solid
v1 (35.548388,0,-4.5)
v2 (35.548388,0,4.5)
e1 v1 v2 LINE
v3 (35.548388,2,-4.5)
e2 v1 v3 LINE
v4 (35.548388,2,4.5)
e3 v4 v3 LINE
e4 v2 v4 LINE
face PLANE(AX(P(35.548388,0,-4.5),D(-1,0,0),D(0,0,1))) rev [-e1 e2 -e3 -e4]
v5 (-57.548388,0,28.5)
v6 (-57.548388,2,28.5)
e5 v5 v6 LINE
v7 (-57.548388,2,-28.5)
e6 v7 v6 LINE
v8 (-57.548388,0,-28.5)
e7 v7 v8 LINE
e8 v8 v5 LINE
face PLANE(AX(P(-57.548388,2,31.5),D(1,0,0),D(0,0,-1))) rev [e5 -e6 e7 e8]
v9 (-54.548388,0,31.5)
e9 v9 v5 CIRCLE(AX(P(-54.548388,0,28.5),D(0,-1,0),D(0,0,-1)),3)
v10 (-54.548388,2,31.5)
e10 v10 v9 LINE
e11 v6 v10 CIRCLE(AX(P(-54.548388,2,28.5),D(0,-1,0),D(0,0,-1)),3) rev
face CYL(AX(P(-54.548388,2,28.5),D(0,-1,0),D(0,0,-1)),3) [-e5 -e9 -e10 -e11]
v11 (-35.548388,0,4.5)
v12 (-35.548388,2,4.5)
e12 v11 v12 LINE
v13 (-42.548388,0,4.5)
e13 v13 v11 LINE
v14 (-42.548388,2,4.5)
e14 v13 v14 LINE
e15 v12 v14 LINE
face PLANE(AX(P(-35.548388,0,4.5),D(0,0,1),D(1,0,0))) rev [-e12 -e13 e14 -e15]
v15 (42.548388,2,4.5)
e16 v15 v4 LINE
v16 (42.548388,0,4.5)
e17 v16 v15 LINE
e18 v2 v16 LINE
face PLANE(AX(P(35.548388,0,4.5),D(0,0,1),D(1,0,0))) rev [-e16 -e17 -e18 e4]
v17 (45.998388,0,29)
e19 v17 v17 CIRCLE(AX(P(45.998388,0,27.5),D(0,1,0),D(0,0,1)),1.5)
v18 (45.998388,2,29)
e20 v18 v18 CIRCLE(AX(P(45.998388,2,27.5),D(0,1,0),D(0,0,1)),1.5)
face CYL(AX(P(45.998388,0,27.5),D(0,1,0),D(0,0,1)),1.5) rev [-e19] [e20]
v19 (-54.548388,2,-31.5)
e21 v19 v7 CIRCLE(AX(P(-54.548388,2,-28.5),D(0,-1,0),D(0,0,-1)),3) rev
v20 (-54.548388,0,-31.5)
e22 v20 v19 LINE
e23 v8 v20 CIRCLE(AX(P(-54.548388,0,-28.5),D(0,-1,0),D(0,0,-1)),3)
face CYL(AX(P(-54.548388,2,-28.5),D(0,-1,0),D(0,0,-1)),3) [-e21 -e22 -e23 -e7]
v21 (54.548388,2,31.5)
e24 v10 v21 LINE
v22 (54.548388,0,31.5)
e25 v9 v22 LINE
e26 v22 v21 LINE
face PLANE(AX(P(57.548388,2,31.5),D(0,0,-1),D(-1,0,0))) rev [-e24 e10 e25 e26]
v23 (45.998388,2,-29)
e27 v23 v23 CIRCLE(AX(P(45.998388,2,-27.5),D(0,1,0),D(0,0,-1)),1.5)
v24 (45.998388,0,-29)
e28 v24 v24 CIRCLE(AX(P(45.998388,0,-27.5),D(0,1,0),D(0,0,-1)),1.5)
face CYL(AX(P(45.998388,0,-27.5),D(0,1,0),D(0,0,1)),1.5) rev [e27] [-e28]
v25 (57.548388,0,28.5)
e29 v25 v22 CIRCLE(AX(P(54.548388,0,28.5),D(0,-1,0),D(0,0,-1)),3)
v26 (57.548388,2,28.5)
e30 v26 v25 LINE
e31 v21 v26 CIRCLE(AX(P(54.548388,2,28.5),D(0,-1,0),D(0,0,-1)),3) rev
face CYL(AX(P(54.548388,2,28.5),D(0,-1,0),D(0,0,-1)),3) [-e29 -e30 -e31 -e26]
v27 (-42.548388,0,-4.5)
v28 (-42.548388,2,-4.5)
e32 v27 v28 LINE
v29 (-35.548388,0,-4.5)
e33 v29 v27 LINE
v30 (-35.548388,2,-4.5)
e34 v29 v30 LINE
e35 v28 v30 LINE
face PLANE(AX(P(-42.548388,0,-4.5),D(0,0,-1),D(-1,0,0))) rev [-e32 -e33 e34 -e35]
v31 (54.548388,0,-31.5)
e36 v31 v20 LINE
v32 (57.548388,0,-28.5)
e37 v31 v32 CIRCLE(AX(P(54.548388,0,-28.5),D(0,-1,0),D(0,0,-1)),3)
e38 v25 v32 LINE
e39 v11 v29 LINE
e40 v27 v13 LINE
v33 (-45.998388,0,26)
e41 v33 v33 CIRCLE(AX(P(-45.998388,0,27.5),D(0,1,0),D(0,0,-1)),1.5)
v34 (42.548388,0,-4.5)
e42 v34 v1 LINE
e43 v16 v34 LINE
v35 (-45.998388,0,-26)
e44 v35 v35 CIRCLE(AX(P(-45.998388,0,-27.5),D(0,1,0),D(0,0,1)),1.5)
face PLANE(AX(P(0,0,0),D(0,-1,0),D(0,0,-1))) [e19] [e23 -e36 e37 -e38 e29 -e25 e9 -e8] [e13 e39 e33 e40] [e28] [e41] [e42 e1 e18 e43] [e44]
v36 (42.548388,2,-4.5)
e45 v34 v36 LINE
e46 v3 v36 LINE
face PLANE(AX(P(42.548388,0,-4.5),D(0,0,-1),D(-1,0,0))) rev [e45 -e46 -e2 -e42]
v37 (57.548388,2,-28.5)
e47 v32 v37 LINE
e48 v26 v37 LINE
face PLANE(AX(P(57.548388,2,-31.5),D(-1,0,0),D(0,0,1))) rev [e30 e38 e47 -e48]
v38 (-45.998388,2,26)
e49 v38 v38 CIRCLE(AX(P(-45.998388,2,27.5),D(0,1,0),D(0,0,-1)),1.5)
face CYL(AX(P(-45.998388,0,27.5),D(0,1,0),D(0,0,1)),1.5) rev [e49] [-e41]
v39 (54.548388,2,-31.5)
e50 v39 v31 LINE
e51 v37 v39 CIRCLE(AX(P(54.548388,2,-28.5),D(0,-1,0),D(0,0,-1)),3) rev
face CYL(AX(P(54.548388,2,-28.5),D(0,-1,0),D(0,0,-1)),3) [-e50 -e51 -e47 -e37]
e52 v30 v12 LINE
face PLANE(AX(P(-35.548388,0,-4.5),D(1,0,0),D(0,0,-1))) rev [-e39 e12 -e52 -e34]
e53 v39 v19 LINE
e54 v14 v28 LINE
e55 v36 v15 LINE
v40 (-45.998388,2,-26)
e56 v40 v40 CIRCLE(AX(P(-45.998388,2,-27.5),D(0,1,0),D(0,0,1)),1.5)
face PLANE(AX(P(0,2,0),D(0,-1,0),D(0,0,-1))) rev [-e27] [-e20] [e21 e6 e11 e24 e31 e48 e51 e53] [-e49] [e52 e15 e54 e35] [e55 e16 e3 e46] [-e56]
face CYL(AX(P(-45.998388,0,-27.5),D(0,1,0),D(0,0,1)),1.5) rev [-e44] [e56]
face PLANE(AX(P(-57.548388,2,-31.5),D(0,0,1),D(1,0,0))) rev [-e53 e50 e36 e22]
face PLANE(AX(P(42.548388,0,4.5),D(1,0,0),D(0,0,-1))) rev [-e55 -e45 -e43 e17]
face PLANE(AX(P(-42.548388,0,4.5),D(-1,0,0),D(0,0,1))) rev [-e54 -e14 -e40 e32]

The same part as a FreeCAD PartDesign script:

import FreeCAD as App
import Part
import Sketcher
from FreeCAD import Vector


def edges_at(feature, points):
    """Names of the edges that pass closest to the given points."""
    edges = feature.Shape.Edges
    near = lambda p: min(range(len(edges)), key=lambda i: edges[i].distToShape(Part.Vertex(*p))[0])
    return sorted({f"Edge{near(p) + 1}" for p in points})


def add_polygon(sketch, points):
    """Adds a closed chain of lines whose ends are joined by coincident constraints."""
    first, n = sketch.GeometryCount, len(points)
    for a, b in zip(points, points[1:] + points[:1]):
        sketch.addGeometry(Part.LineSegment(App.Vector(*a, 0), App.Vector(*b, 0)), False)
    for i in range(n):
        sketch.addConstraint(Sketcher.Constraint("Coincident", first + i, 2, first + (i + 1) % n, 1))

doc = App.newDocument("Part")
body = doc.addObject("PartDesign::Body", "Body")

# Sketch on XZ plane
sketch1 = doc.addObject("Sketcher::SketchObject", "Sketch")
body.addObject(sketch1)
sketch1.AttachmentSupport = (doc.XZ_Plane, [""])
sketch1.MapMode = "FlatFace"
add_polygon(sketch1, [(-58, -32), (-58, 32), (58, 32), (58, -32)])  # lines 0-3
sketch1.addConstraint(Sketcher.Constraint("Vertical", 0))
sketch1.addConstraint(Sketcher.Constraint("Horizontal", 1))
sketch1.addConstraint(Sketcher.Constraint("Vertical", 2))
sketch1.addConstraint(Sketcher.Constraint("Horizontal", 3))
sketch1.addConstraint(Sketcher.Constraint("Symmetric", 0, 2, 2, 2, -1, 1))
sketch1.addConstraint(Sketcher.Constraint("DistanceY", 0, 1, 0, 2, 63.0))
sketch1.addConstraint(Sketcher.Constraint("DistanceX", 1, 1, 1, 2, 115.096777))
pad1 = doc.addObject("PartDesign::Pad", "Pad")
body.addObject(pad1)
pad1.Profile = sketch1
pad1.Length = 2
pad1.Reversed = True
doc.recompute()

fillet = doc.addObject("PartDesign::Fillet", "Fillet")
body.addObject(fillet)
fillet.Base = (pad1, edges_at(pad1, [
    (-57.548, 1, -31.5),
    (57.548, 1, -31.5),
    (57.548, 1, 31.5),
    (-57.548, 1, 31.5),
]))
fillet.Radius = 3

# Sketch on XZ plane
sketch2 = doc.addObject("Sketcher::SketchObject", "Sketch001")
body.addObject(sketch2)
sketch2.AttachmentSupport = (doc.XZ_Plane, [""])
sketch2.MapMode = "FlatFace"
sketch2.AttachmentOffset = App.Placement(Vector(0, 0, -2), App.Rotation())
add_polygon(sketch2, [(-43, -4), (-43, 4), (-36, 4), (-36, -4)])  # lines 0-3
add_polygon(sketch2, [(36, -4), (36, 4), (43, 4), (43, -4)])  # lines 4-7
sketch2.addConstraint(Sketcher.Constraint("Vertical", 0))
sketch2.addConstraint(Sketcher.Constraint("Horizontal", 1))
sketch2.addConstraint(Sketcher.Constraint("Vertical", 2))
sketch2.addConstraint(Sketcher.Constraint("Horizontal", 3))
sketch2.addConstraint(Sketcher.Constraint("Vertical", 4))
sketch2.addConstraint(Sketcher.Constraint("Horizontal", 5))
sketch2.addConstraint(Sketcher.Constraint("Vertical", 6))
sketch2.addConstraint(Sketcher.Constraint("Horizontal", 7))
sketch2.addConstraint(Sketcher.Constraint("Symmetric", 2, 2, 4, 2, -1, 1))
sketch2.addConstraint(Sketcher.Constraint("Symmetric", 0, 2, 6, 2, -1, 1))
sketch2.addConstraint(Sketcher.Constraint("Horizontal", 1, 2, 4, 2))
sketch2.addConstraint(Sketcher.Constraint("DistanceX", 1, 1, 1, 2, 7.0))
sketch2.addConstraint(Sketcher.Constraint("DistanceY", 0, 1, 0, 2, 9.0))
sketch2.addConstraint(Sketcher.Constraint("DistanceX", 0, 2, -1, 1, 42.548388))
pocket1 = doc.addObject("PartDesign::Pocket", "Pocket")
body.addObject(pocket1)
pocket1.Profile = sketch2
pocket1.Type = "ThroughAll"
pocket1.Midplane = True

# Sketch on XZ plane
sketch3 = doc.addObject("Sketcher::SketchObject", "Sketch002")
body.addObject(sketch3)
sketch3.AttachmentSupport = (doc.XZ_Plane, [""])
sketch3.MapMode = "FlatFace"
sketch3.AttachmentOffset = App.Placement(Vector(0, 0, -2), App.Rotation())
sketch3.addGeometry(Part.Circle(Vector(-46, -27.5, 0), Vector(0, 0, 1), 1.5), False)
sketch3.addGeometry(Part.Circle(Vector(46, -27.5, 0), Vector(0, 0, 1), 1.5), False)
sketch3.addGeometry(Part.Circle(Vector(46, 27.5, 0), Vector(0, 0, 1), 1.5), False)
sketch3.addGeometry(Part.Circle(Vector(-46, 27.5, 0), Vector(0, 0, 1), 1.5), False)
sketch3.addConstraint(Sketcher.Constraint("Equal", 0, 1))
sketch3.addConstraint(Sketcher.Constraint("Equal", 1, 2))
sketch3.addConstraint(Sketcher.Constraint("Equal", 2, 3))
sketch3.addConstraint(Sketcher.Constraint("Symmetric", 0, 3, 2, 3, -1, 1))
sketch3.addConstraint(Sketcher.Constraint("Symmetric", 1, 3, 3, 3, -1, 1))
sketch3.addConstraint(Sketcher.Constraint("Symmetric", 0, 3, 1, 3, -2))
sketch3.addConstraint(Sketcher.Constraint("Diameter", 0, 3.0))
sketch3.addConstraint(Sketcher.Constraint("DistanceY", 1, 3, 2, 3, 55.0))
sketch3.addConstraint(Sketcher.Constraint("DistanceX", 0, 3, -1, 1, 45.998388))
pocket2 = doc.addObject("PartDesign::Pocket", "Pocket001")
body.addObject(pocket2)
pocket2.Profile = sketch3
pocket2.Type = "ThroughAll"
pocket2.Reversed = True

doc.recompute()
